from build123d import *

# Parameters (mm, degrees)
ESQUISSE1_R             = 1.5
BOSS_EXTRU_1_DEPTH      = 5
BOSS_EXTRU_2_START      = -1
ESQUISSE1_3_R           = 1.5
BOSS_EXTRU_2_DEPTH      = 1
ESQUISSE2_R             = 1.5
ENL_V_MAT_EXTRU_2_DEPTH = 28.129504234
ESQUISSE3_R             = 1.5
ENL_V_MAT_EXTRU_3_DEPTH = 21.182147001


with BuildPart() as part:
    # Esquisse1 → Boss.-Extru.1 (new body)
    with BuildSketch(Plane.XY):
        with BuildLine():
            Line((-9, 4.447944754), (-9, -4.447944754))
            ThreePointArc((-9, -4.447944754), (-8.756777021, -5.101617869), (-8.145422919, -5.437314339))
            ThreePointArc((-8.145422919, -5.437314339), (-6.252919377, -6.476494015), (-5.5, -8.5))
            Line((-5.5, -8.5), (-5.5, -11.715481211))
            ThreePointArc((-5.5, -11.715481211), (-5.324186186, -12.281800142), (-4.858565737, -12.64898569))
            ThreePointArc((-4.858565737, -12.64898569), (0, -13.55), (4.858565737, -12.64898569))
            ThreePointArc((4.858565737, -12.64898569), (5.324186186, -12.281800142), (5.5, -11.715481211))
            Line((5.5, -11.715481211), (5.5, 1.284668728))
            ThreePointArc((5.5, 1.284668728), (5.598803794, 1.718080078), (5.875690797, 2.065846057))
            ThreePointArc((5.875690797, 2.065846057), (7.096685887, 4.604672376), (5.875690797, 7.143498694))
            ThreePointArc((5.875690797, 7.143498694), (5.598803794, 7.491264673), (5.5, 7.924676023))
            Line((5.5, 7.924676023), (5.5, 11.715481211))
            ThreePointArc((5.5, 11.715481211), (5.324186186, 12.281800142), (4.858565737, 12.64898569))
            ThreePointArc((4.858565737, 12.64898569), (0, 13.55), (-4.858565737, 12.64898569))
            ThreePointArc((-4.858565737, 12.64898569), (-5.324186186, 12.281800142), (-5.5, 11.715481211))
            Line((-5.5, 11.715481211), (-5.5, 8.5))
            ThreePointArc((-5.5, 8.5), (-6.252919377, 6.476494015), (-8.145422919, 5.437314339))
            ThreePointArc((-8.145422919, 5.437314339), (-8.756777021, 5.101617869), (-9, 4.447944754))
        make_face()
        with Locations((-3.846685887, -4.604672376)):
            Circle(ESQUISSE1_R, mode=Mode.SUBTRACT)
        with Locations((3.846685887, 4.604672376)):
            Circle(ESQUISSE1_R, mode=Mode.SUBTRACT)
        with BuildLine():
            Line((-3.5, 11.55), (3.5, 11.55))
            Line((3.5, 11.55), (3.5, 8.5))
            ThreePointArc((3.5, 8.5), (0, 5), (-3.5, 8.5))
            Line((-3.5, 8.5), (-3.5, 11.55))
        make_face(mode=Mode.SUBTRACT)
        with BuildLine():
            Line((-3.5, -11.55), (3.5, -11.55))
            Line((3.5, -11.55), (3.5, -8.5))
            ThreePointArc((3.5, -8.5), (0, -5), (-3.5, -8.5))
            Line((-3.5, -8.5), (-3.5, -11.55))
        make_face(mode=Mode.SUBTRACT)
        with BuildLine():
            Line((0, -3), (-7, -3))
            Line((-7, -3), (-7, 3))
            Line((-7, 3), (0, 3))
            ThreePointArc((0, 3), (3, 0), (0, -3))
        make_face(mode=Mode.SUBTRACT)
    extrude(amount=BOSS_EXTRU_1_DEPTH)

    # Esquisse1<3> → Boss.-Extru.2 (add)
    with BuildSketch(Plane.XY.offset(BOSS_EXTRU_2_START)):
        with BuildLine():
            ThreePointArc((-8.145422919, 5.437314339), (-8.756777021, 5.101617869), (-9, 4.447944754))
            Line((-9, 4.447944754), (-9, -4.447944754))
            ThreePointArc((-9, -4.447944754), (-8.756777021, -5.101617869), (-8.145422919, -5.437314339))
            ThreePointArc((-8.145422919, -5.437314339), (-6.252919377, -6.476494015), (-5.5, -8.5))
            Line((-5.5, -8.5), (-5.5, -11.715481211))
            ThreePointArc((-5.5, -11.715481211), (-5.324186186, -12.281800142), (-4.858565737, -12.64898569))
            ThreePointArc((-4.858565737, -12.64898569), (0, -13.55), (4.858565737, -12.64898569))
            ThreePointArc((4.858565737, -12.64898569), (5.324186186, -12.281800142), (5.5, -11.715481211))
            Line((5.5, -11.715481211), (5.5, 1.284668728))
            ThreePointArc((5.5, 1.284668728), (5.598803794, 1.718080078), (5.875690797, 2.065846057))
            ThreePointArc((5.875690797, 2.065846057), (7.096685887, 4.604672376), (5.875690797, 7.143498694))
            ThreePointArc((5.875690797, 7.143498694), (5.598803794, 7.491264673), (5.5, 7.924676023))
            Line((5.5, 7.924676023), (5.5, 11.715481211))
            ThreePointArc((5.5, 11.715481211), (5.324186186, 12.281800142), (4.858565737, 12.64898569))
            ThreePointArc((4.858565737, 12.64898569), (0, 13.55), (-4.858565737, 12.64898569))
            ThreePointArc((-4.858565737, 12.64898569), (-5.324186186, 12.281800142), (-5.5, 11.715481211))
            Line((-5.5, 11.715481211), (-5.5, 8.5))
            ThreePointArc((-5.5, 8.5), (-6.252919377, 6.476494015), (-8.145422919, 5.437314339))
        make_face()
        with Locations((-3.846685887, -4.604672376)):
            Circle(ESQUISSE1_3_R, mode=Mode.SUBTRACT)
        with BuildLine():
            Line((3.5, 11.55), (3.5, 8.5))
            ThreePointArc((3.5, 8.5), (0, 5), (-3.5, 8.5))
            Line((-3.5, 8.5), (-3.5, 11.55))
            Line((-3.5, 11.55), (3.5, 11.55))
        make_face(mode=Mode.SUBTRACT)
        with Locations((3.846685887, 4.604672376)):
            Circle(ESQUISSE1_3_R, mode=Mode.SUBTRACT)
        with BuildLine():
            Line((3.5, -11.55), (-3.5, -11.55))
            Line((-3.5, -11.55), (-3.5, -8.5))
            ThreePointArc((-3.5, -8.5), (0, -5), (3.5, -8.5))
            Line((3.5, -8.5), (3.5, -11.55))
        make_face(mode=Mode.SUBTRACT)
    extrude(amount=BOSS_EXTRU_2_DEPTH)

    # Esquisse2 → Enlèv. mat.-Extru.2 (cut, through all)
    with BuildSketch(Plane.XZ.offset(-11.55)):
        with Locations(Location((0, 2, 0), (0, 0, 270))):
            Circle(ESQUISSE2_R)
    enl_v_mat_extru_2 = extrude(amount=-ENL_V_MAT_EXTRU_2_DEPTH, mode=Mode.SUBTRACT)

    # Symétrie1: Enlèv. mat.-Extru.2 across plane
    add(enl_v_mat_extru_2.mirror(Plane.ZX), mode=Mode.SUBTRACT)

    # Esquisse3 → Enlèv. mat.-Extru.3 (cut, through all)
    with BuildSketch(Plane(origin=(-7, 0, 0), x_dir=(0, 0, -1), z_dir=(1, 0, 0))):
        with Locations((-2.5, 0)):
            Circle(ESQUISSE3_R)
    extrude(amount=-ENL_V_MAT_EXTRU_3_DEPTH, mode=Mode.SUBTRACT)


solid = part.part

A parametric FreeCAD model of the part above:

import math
import FreeCAD as App
import Part
import Sketcher
from FreeCAD import Vector
Q = App.Units.Quantity

doc = App.newDocument("Part")
body = doc.addObject("PartDesign::Body", "Body")

# Sketch on XY plane
sketch1 = body.newObject("Sketcher::SketchObject", "Sketch")
sketch1.AttachmentSupport = (doc.getObject("XY_Plane"), [""])
sketch1.MapMode = "FlatFace"
sketch1.addGeometry(Part.LineSegment(Vector(-9, 4.4, 0), Vector(-9, -4.4, 0)), False)
sketch1.addGeometry(Part.ArcOfCircle(Part.Circle(Vector(-8, -4.4, 0), Vector(0, 0, 1), 1), math.radians(180), math.radians(262)), False)
sketch1.addGeometry(Part.ArcOfCircle(Part.Circle(Vector(-8.6, -8.5, 0), Vector(0, 0, 1), 3.1), math.radians(0), math.radians(82)), False)
sketch1.addGeometry(Part.LineSegment(Vector(-5.5, -8.5, 0), Vector(-5.5, -11.7, 0)), False)
sketch1.addGeometry(Part.ArcOfCircle(Part.Circle(Vector(-4.5, -11.7, 0), Vector(0, 0, 1), 1), math.radians(180), math.radians(249)), False)
sketch1.addGeometry(Part.ArcOfCircle(Part.Circle(Vector(0, 0, 0), Vector(0, 0, 1), 13.6), math.radians(-111), math.radians(-69)), False)
sketch1.addGeometry(Part.ArcOfCircle(Part.Circle(Vector(4.5, -11.7, 0), Vector(0, 0, 1), 1), math.radians(-69), math.radians(0)), False)
sketch1.addGeometry(Part.LineSegment(Vector(5.5, -11.7, 0), Vector(5.5, 1.3, 0)), False)
sketch1.addGeometry(Part.ArcOfCircle(Part.Circle(Vector(6.5, 1.3, 0), Vector(0, 0, 1), 1), math.radians(129), math.radians(180)), False)
sketch1.addGeometry(Part.ArcOfCircle(Part.Circle(Vector(3.8, 4.6, 0), Vector(0, 0, 1), 3.2), math.radians(-51), math.radians(51)), False)
sketch1.addGeometry(Part.ArcOfCircle(Part.Circle(Vector(6.5, 7.9, 0), Vector(0, 0, 1), 1), math.radians(180), math.radians(231)), False)
sketch1.addGeometry(Part.LineSegment(Vector(5.5, 7.9, 0), Vector(5.5, 11.7, 0)), False)
sketch1.addGeometry(Part.ArcOfCircle(Part.Circle(Vector(4.5, 11.7, 0), Vector(0, 0, 1), 1), math.radians(0), math.radians(69)), False)
sketch1.addGeometry(Part.ArcOfCircle(Part.Circle(Vector(0, 0, 0), Vector(0, 0, 1), 13.6), math.radians(69), math.radians(111)), False)
sketch1.addGeometry(Part.ArcOfCircle(Part.Circle(Vector(-4.5, 11.7, 0), Vector(0, 0, 1), 1), math.radians(111), math.radians(180)), False)
sketch1.addGeometry(Part.LineSegment(Vector(-5.5, 11.7, 0), Vector(-5.5, 8.5, 0)), False)
sketch1.addGeometry(Part.ArcOfCircle(Part.Circle(Vector(-8.6, 8.5, 0), Vector(0, 0, 1), 3.1), math.radians(-82), math.radians(0)), False)
sketch1.addGeometry(Part.ArcOfCircle(Part.Circle(Vector(-8, 4.4, 0), Vector(0, 0, 1), 1), math.radians(98), math.radians(180)), False)
sketch1.addGeometry(Part.Circle(Vector(-3.8, -4.6, 0), Vector(0, 0, 1), 1.5), False)
sketch1.addGeometry(Part.LineSegment(Vector(3.5, -11.6, 0), Vector(-3.5, -11.6, 0)), False)
sketch1.addGeometry(Part.LineSegment(Vector(-3.5, -11.6, 0), Vector(-3.5, -8.5, 0)), False)
sketch1.addGeometry(Part.ArcOfCircle(Part.Circle(Vector(0, -8.5, 0), Vector(0, 0, 1), 3.5), math.radians(0), math.radians(180)), False)
sketch1.addGeometry(Part.LineSegment(Vector(3.5, -8.5, 0), Vector(3.5, -11.6, 0)), False)
sketch1.addGeometry(Part.ArcOfCircle(Part.Circle(Vector(0, 0, 0), Vector(0, 0, 1), 3), math.radians(-90), math.radians(90)), False)
sketch1.addGeometry(Part.LineSegment(Vector(0, -3, 0), Vector(-7, -3, 0)), False)
sketch1.addGeometry(Part.LineSegment(Vector(-7, -3, 0), Vector(-7, 3, 0)), False)
sketch1.addGeometry(Part.LineSegment(Vector(-7, 3, 0), Vector(0, 3, 0)), False)
sketch1.addGeometry(Part.Circle(Vector(3.8, 4.6, 0), Vector(0, 0, 1), 1.5), False)
sketch1.addGeometry(Part.LineSegment(Vector(-3.5, 8.5, 0), Vector(-3.5, 11.6, 0)), False)
sketch1.addGeometry(Part.LineSegment(Vector(-3.5, 11.6, 0), Vector(3.5, 11.6, 0)), False)
sketch1.addGeometry(Part.LineSegment(Vector(3.5, 11.6, 0), Vector(3.5, 8.5, 0)), False)
sketch1.addGeometry(Part.ArcOfCircle(Part.Circle(Vector(0, 8.5, 0), Vector(0, 0, 1), 3.5), math.radians(180), math.radians(360)), False)
sketch1.addConstraint(Sketcher.Constraint("Tangent", 0, 2, 1, 1))
sketch1.addConstraint(Sketcher.Constraint("Tangent", 1, 2, 2, 2))
sketch1.addConstraint(Sketcher.Constraint("Tangent", 2, 1, 3, 1))
sketch1.addConstraint(Sketcher.Constraint("Tangent", 3, 2, 4, 1))
sketch1.addConstraint(Sketcher.Constraint("Tangent", 4, 2, 5, 1))
sketch1.addConstraint(Sketcher.Constraint("Tangent", 5, 2, 6, 1))
sketch1.addConstraint(Sketcher.Constraint("Tangent", 6, 2, 7, 1))
sketch1.addConstraint(Sketcher.Constraint("Tangent", 7, 2, 8, 2))
sketch1.addConstraint(Sketcher.Constraint("Tangent", 8, 1, 9, 1))
sketch1.addConstraint(Sketcher.Constraint("Tangent", 9, 2, 10, 2))
sketch1.addConstraint(Sketcher.Constraint("Tangent", 10, 1, 11, 1))
sketch1.addConstraint(Sketcher.Constraint("Tangent", 11, 2, 12, 1))
sketch1.addConstraint(Sketcher.Constraint("Tangent", 12, 2, 13, 1))
sketch1.addConstraint(Sketcher.Constraint("Tangent", 13, 2, 14, 1))
sketch1.addConstraint(Sketcher.Constraint("Tangent", 14, 2, 15, 1))
sketch1.addConstraint(Sketcher.Constraint("Tangent", 15, 2, 16, 2))
sketch1.addConstraint(Sketcher.Constraint("Tangent", 16, 1, 17, 1))
sketch1.addConstraint(Sketcher.Constraint("Tangent", 17, 2, 0, 1))
sketch1.addConstraint(Sketcher.Constraint("Coincident", 19, 2, 20, 1))
sketch1.addConstraint(Sketcher.Constraint("Tangent", 20, 2, 21, 2))
sketch1.addConstraint(Sketcher.Constraint("Tangent", 21, 1, 22, 1))
sketch1.addConstraint(Sketcher.Constraint("Coincident", 22, 2, 19, 1))
sketch1.addConstraint(Sketcher.Constraint("Tangent", 23, 1, 24, 1))
sketch1.addConstraint(Sketcher.Constraint("Coincident", 24, 2, 25, 1))
sketch1.addConstraint(Sketcher.Constraint("Coincident", 25, 2, 26, 1))
sketch1.addConstraint(Sketcher.Constraint("Tangent", 26, 2, 23, 2))
sketch1.addConstraint(Sketcher.Constraint("Coincident", 28, 2, 29, 1))
sketch1.addConstraint(Sketcher.Constraint("Coincident", 29, 2, 30, 1))
sketch1.addConstraint(Sketcher.Constraint("Tangent", 30, 2, 31, 2))
sketch1.addConstraint(Sketcher.Constraint("Tangent", 31, 1, 28, 1))
sketch1.addConstraint(Sketcher.Constraint("Vertical", 0))
sketch1.addConstraint(Sketcher.Constraint("Vertical", 3))
sketch1.addConstraint(Sketcher.Constraint("Vertical", 7))
sketch1.addConstraint(Sketcher.Constraint("Vertical", 11))
sketch1.addConstraint(Sketcher.Constraint("Vertical", 15))
sketch1.addConstraint(Sketcher.Constraint("Horizontal", 19))
sketch1.addConstraint(Sketcher.Constraint("Vertical", 20))
sketch1.addConstraint(Sketcher.Constraint("Vertical", 22))
sketch1.addConstraint(Sketcher.Constraint("Horizontal", 24))
sketch1.addConstraint(Sketcher.Constraint("Vertical", 25))
sketch1.addConstraint(Sketcher.Constraint("Horizontal", 26))
sketch1.addConstraint(Sketcher.Constraint("Vertical", 28))
sketch1.addConstraint(Sketcher.Constraint("Horizontal", 29))
sketch1.addConstraint(Sketcher.Constraint("Vertical", 30))
sketch1.addConstraint(Sketcher.Constraint("Coincident", 5, 3, -1, 1))
sketch1.addConstraint(Sketcher.Constraint("Coincident", 13, 3, -1, 1))
sketch1.addConstraint(Sketcher.Constraint("Coincident", 23, 3, -1, 1))
sketch1.addConstraint(Sketcher.Constraint("Coincident", 27, 3, 9, 3))
sketch1.addConstraint(Sketcher.Constraint("Equal", 1, 4))
sketch1.addConstraint(Sketcher.Constraint("Equal", 4, 6))
sketch1.addConstraint(Sketcher.Constraint("Equal", 6, 8))
sketch1.addConstraint(Sketcher.Constraint("Equal", 8, 10))
sketch1.addConstraint(Sketcher.Constraint("Equal", 10, 12))
sketch1.addConstraint(Sketcher.Constraint("Equal", 5, 13))
sketch1.addConstraint(Sketcher.Constraint("Equal", 12, 14))
sketch1.addConstraint(Sketcher.Constraint("Equal", 2, 16))
sketch1.addConstraint(Sketcher.Constraint("Equal", 14, 17))
sketch1.addConstraint(Sketcher.Constraint("Equal", 18, 27))
sketch1.addConstraint(Sketcher.Constraint("Equal", 21, 31))
sketch1.addConstraint(Sketcher.Constraint("Symmetric", 9, 3, 18, 3, -1, 1))
sketch1.addConstraint(Sketcher.Constraint("Symmetric", 21, 3, 31, 3, -1, 1))
sketch1.addConstraint(Sketcher.Constraint("Symmetric", 2, 3, 16, 3, -1))
sketch1.addConstraint(Sketcher.Constraint("Symmetric", 19, 2, 28, 2, -1))
sketch1.addConstraint(Sketcher.Constraint("Horizontal", 4, 3, 6, 3))
sketch1.addConstraint(Sketcher.Constraint("Horizontal", 12, 3, 14, 3))
sketch1.addConstraint(Sketcher.Constraint("Horizontal", 2, 3, 21, 3))
sketch1.addConstraint(Sketcher.Constraint("Equal", 19, 24))
sketch1.addConstraint(Sketcher.Constraint("Diameter", 18, Q("3 mm")))
sketch1.addConstraint(Sketcher.Constraint("Radius", 1, Q("1 mm")))
sketch1.addConstraint(Sketcher.Constraint("Radius", 23, Q("3 mm")))
sketch1.addConstraint(Sketcher.Constraint("Radius", 21, Q("3.5 mm")))
sketch1.addConstraint(Sketcher.Constraint("Radius", 5, Q("13.55 mm")))
sketch1.addConstraint(Sketcher.Constraint("Radius", 9, Q("3.25 mm")))
sketch1.addConstraint(Sketcher.Constraint("DistanceX", 1, 3, -1, 1, Q("8 mm")))
sketch1.addConstraint(Sketcher.Constraint("DistanceX", 4, 3, 6, 3, Q("9 mm")))
sketch1.addConstraint(Sketcher.Constraint("DistanceY", 20, 1, 20, 2, Q("3.05 mm")))
sketch1.addConstraint(Sketcher.Constraint("DistanceY", 2, 3, -1, 1, Q("8.5 mm")))
sketch1.addConstraint(Sketcher.Constraint("Radius", 2, Q("3.095593 mm")))
sketch1.addConstraint(Sketcher.Constraint("DistanceY", 7, 1, 7, 2, Q("13.00015 mm")))
sketch1.addConstraint(Sketcher.Constraint("DistanceY", -1, 1, 9, 2, Q("7.143499 mm")))
pad1 = body.newObject("PartDesign::Pad", "Pad")
pad1.Profile = sketch1
pad1.Length = 5

# Sketch on XY plane
sketch2 = body.newObject("Sketcher::SketchObject", "Sketch001")
sketch2.AttachmentSupport = (doc.getObject("XY_Plane"), [""])
sketch2.MapMode = "FlatFace"
sketch2.AttachmentOffset = App.Placement(Vector(0, 0, -1), App.Rotation())
sketch2.addGeometry(Part.ArcOfCircle(Part.Circle(Vector(-8, 4.4, 0), Vector(0, 0, 1), 1), math.radians(98), math.radians(180)), False)
sketch2.addGeometry(Part.LineSegment(Vector(-9, 4.4, 0), Vector(-9, -4.4, 0)), False)
sketch2.addGeometry(Part.ArcOfCircle(Part.Circle(Vector(-8, -4.4, 0), Vector(0, 0, 1), 1), math.radians(180), math.radians(262)), False)
sketch2.addGeometry(Part.ArcOfCircle(Part.Circle(Vector(-8.6, -8.5, 0), Vector(0, 0, 1), 3.1), math.radians(0), math.radians(82)), False)
sketch2.addGeometry(Part.LineSegment(Vector(-5.5, -8.5, 0), Vector(-5.5, -11.7, 0)), False)
sketch2.addGeometry(Part.ArcOfCircle(Part.Circle(Vector(-4.5, -11.7, 0), Vector(0, 0, 1), 1), math.radians(180), math.radians(249)), False)
sketch2.addGeometry(Part.ArcOfCircle(Part.Circle(Vector(0, 0, 0), Vector(0, 0, 1), 13.6), math.radians(-111), math.radians(-69)), False)
sketch2.addGeometry(Part.ArcOfCircle(Part.Circle(Vector(4.5, -11.7, 0), Vector(0, 0, 1), 1), math.radians(-69), math.radians(0)), False)
sketch2.addGeometry(Part.LineSegment(Vector(5.5, -11.7, 0), Vector(5.5, 1.3, 0)), False)
sketch2.addGeometry(Part.ArcOfCircle(Part.Circle(Vector(6.5, 1.3, 0), Vector(0, 0, 1), 1), math.radians(129), math.radians(180)), False)
sketch2.addGeometry(Part.ArcOfCircle(Part.Circle(Vector(3.8, 4.6, 0), Vector(0, 0, 1), 3.2), math.radians(-51), math.radians(51)), False)
sketch2.addGeometry(Part.ArcOfCircle(Part.Circle(Vector(6.5, 7.9, 0), Vector(0, 0, 1), 1), math.radians(180), math.radians(231)), False)
sketch2.addGeometry(Part.LineSegment(Vector(5.5, 7.9, 0), Vector(5.5, 11.7, 0)), False)
sketch2.addGeometry(Part.ArcOfCircle(Part.Circle(Vector(4.5, 11.7, 0), Vector(0, 0, 1), 1), math.radians(0), math.radians(69)), False)
sketch2.addGeometry(Part.ArcOfCircle(Part.Circle(Vector(0, 0, 0), Vector(0, 0, 1), 13.6), math.radians(69), math.radians(111)), False)
sketch2.addGeometry(Part.ArcOfCircle(Part.Circle(Vector(-4.5, 11.7, 0), Vector(0, 0, 1), 1), math.radians(111), math.radians(180)), False)
sketch2.addGeometry(Part.LineSegment(Vector(-5.5, 11.7, 0), Vector(-5.5, 8.5, 0)), False)
sketch2.addGeometry(Part.ArcOfCircle(Part.Circle(Vector(-8.6, 8.5, 0), Vector(0, 0, 1), 3.1), math.radians(-82), math.radians(0)), False)
sketch2.addGeometry(Part.Circle(Vector(-3.8, -4.6, 0), Vector(0, 0, 1), 1.5), False)
sketch2.addGeometry(Part.LineSegment(Vector(3.5, -8.5, 0), Vector(3.5, -11.6, 0)), False)
sketch2.addGeometry(Part.LineSegment(Vector(3.5, -11.6, 0), Vector(-3.5, -11.6, 0)), False)
sketch2.addGeometry(Part.LineSegment(Vector(-3.5, -11.6, 0), Vector(-3.5, -8.5, 0)), False)
sketch2.addGeometry(Part.ArcOfCircle(Part.Circle(Vector(0, -8.5, 0), Vector(0, 0, 1), 3.5), math.radians(0), math.radians(180)), False)
sketch2.addGeometry(Part.Circle(Vector(3.8, 4.6, 0), Vector(0, 0, 1), 1.5), False)
sketch2.addGeometry(Part.LineSegment(Vector(-3.5, 11.6, 0), Vector(3.5, 11.6, 0)), False)
sketch2.addGeometry(Part.LineSegment(Vector(3.5, 11.6, 0), Vector(3.5, 8.5, 0)), False)
sketch2.addGeometry(Part.ArcOfCircle(Part.Circle(Vector(0, 8.5, 0), Vector(0, 0, 1), 3.5), math.radians(180), math.radians(360)), False)
sketch2.addGeometry(Part.LineSegment(Vector(-3.5, 8.5, 0), Vector(-3.5, 11.6, 0)), False)
sketch2.addConstraint(Sketcher.Constraint("Tangent", 0, 2, 1, 1))
sketch2.addConstraint(Sketcher.Constraint("Tangent", 1, 2, 2, 1))
sketch2.addConstraint(Sketcher.Constraint("Tangent", 2, 2, 3, 2))
sketch2.addConstraint(Sketcher.Constraint("Tangent", 3, 1, 4, 1))
sketch2.addConstraint(Sketcher.Constraint("Tangent", 4, 2, 5, 1))
sketch2.addConstraint(Sketcher.Constraint("Tangent", 5, 2, 6, 1))
sketch2.addConstraint(Sketcher.Constraint("Tangent", 6, 2, 7, 1))
sketch2.addConstraint(Sketcher.Constraint("Tangent", 7, 2, 8, 1))
sketch2.addConstraint(Sketcher.Constraint("Tangent", 8, 2, 9, 2))
sketch2.addConstraint(Sketcher.Constraint("Tangent", 9, 1, 10, 1))
sketch2.addConstraint(Sketcher.Constraint("Tangent", 10, 2, 11, 2))
sketch2.addConstraint(Sketcher.Constraint("Tangent", 11, 1, 12, 1))
sketch2.addConstraint(Sketcher.Constraint("Tangent", 12, 2, 13, 1))
sketch2.addConstraint(Sketcher.Constraint("Tangent", 13, 2, 14, 1))
sketch2.addConstraint(Sketcher.Constraint("Tangent", 14, 2, 15, 1))
sketch2.addConstraint(Sketcher.Constraint("Tangent", 15, 2, 16, 1))
sketch2.addConstraint(Sketcher.Constraint("Tangent", 16, 2, 17, 2))
sketch2.addConstraint(Sketcher.Constraint("Tangent", 17, 1, 0, 1))
sketch2.addConstraint(Sketcher.Constraint("Coincident", 19, 2, 20, 1))
sketch2.addConstraint(Sketcher.Constraint("Coincident", 20, 2, 21, 1))
sketch2.addConstraint(Sketcher.Constraint("Tangent", 21, 2, 22, 2))
sketch2.addConstraint(Sketcher.Constraint("Tangent", 22, 1, 19, 1))
sketch2.addConstraint(Sketcher.Constraint("Coincident", 24, 2, 25, 1))
sketch2.addConstraint(Sketcher.Constraint("Tangent", 25, 2, 26, 2))
sketch2.addConstraint(Sketcher.Constraint("Tangent", 26, 1, 27, 1))
sketch2.addConstraint(Sketcher.Constraint("Coincident", 27, 2, 24, 1))
sketch2.addConstraint(Sketcher.Constraint("Vertical", 1))
sketch2.addConstraint(Sketcher.Constraint("Vertical", 4))
sketch2.addConstraint(Sketcher.Constraint("Vertical", 8))
sketch2.addConstraint(Sketcher.Constraint("Vertical", 12))
sketch2.addConstraint(Sketcher.Constraint("Vertical", 16))
sketch2.addConstraint(Sketcher.Constraint("Vertical", 19))
sketch2.addConstraint(Sketcher.Constraint("Horizontal", 20))
sketch2.addConstraint(Sketcher.Constraint("Vertical", 21))
sketch2.addConstraint(Sketcher.Constraint("Horizontal", 24))
sketch2.addConstraint(Sketcher.Constraint("Vertical", 25))
sketch2.addConstraint(Sketcher.Constraint("Vertical", 27))
sketch2.addConstraint(Sketcher.Constraint("Coincident", 6, 3, -1, 1))
sketch2.addConstraint(Sketcher.Constraint("Coincident", 14, 3, -1, 1))
sketch2.addConstraint(Sketcher.Constraint("Coincident", 23, 3, 10, 3))
sketch2.addConstraint(Sketcher.Constraint("Equal", 0, 2))
sketch2.addConstraint(Sketcher.Constraint("Equal", 2, 5))
sketch2.addConstraint(Sketcher.Constraint("Equal", 5, 7))
sketch2.addConstraint(Sketcher.Constraint("Equal", 7, 9))
sketch2.addConstraint(Sketcher.Constraint("Equal", 9, 11))
sketch2.addConstraint(Sketcher.Constraint("Equal", 11, 13))
sketch2.addConstraint(Sketcher.Constraint("Equal", 6, 14))
sketch2.addConstraint(Sketcher.Constraint("Equal", 13, 15))
sketch2.addConstraint(Sketcher.Constraint("Equal", 3, 17))
sketch2.addConstraint(Sketcher.Constraint("Equal", 18, 23))
sketch2.addConstraint(Sketcher.Constraint("Equal", 22, 26))
sketch2.addConstraint(Sketcher.Constraint("Symmetric", 10, 3, 18, 3, -1, 1))
sketch2.addConstraint(Sketcher.Constraint("Symmetric", 22, 3, 26, 3, -1, 1))
sketch2.addConstraint(Sketcher.Constraint("Symmetric", 3, 3, 17, 3, -1))
sketch2.addConstraint(Sketcher.Constraint("Symmetric", 19, 2, 24, 2, -1))
sketch2.addConstraint(Sketcher.Constraint("Horizontal", 5, 3, 7, 3))
sketch2.addConstraint(Sketcher.Constraint("Horizontal", 13, 3, 15, 3))
sketch2.addConstraint(Sketcher.Constraint("Horizontal", 3, 3, 22, 3))
sketch2.addConstraint(Sketcher.Constraint("Diameter", 18, Q("3 mm")))
sketch2.addConstraint(Sketcher.Constraint("Radius", 0, Q("1 mm")))
sketch2.addConstraint(Sketcher.Constraint("Radius", 22, Q("3.5 mm")))
sketch2.addConstraint(Sketcher.Constraint("Radius", 6, Q("13.55 mm")))
sketch2.addConstraint(Sketcher.Constraint("Radius", 10, Q("3.25 mm")))
sketch2.addConstraint(Sketcher.Constraint("DistanceX", 0, 3, -1, 1, Q("8 mm")))
sketch2.addConstraint(Sketcher.Constraint("DistanceX", 5, 3, 7, 3, Q("9 mm")))
sketch2.addConstraint(Sketcher.Constraint("DistanceY", 19, 2, 19, 1, Q("3.05 mm")))
sketch2.addConstraint(Sketcher.Constraint("DistanceY", 3, 3, -1, 1, Q("8.5 mm")))
sketch2.addConstraint(Sketcher.Constraint("Radius", 3, Q("3.095593 mm")))
sketch2.addConstraint(Sketcher.Constraint("DistanceY", 8, 1, 8, 2, Q("13.00015 mm")))
sketch2.addConstraint(Sketcher.Constraint("DistanceY", -1, 1, 10, 2, Q("7.143499 mm")))
pad2 = body.newObject("PartDesign::Pad", "Pad001")
pad2.Profile = sketch2
pad2.Length = 1

# Sketch on XZ plane
sketch3 = body.newObject("Sketcher::SketchObject", "Sketch002")
sketch3.AttachmentSupport = (doc.getObject("XZ_Plane"), [""])
sketch3.MapMode = "FlatFace"
sketch3.AttachmentOffset = App.Placement(Vector(0, 0, -11.55), App.Rotation())
sketch3.addGeometry(Part.Circle(Vector(0, 2, 0), Vector(0, 0, 1), 1.5), False)
sketch3.addConstraint(Sketcher.Constraint("PointOnObject", 0, 3, -2))
sketch3.addConstraint(Sketcher.Constraint("Diameter", 0, Q("3 mm")))
sketch3.addConstraint(Sketcher.Constraint("DistanceY", -1, 1, 0, 3, Q("2 mm")))
pocket1 = body.newObject("PartDesign::Pocket", "Pocket")
pocket1.Profile = sketch3
pocket1.Type = "ThroughAll"
doc.recompute()

mirrored = body.newObject("PartDesign::Mirrored", "Mirrored")
mirrored.Originals = [pocket1]
mirrored.MirrorPlane = (doc.getObject("XZ_Plane"), [""])
body.Tip = mirrored

# Sketch on YZ plane
sketch4 = body.newObject("Sketcher::SketchObject", "Sketch003")
sketch4.AttachmentSupport = (doc.getObject("YZ_Plane"), [""])
sketch4.MapMode = "FlatFace"
sketch4.AttachmentOffset = App.Placement(Vector(0, 0, -7), App.Rotation())
sketch4.addGeometry(Part.Circle(Vector(0, 2.5, 0), Vector(0, 0, 1), 1.5), False)
sketch4.addConstraint(Sketcher.Constraint("PointOnObject", 0, 3, -2))
sketch4.addConstraint(Sketcher.Constraint("Diameter", 0, Q("3 mm")))
sketch4.addConstraint(Sketcher.Constraint("DistanceY", -1, 1, 0, 3, Q("2.5 mm")))
pocket2 = body.newObject("PartDesign::Pocket", "Pocket001")
pocket2.Profile = sketch4
pocket2.Type = "ThroughAll"

doc.recompute()
